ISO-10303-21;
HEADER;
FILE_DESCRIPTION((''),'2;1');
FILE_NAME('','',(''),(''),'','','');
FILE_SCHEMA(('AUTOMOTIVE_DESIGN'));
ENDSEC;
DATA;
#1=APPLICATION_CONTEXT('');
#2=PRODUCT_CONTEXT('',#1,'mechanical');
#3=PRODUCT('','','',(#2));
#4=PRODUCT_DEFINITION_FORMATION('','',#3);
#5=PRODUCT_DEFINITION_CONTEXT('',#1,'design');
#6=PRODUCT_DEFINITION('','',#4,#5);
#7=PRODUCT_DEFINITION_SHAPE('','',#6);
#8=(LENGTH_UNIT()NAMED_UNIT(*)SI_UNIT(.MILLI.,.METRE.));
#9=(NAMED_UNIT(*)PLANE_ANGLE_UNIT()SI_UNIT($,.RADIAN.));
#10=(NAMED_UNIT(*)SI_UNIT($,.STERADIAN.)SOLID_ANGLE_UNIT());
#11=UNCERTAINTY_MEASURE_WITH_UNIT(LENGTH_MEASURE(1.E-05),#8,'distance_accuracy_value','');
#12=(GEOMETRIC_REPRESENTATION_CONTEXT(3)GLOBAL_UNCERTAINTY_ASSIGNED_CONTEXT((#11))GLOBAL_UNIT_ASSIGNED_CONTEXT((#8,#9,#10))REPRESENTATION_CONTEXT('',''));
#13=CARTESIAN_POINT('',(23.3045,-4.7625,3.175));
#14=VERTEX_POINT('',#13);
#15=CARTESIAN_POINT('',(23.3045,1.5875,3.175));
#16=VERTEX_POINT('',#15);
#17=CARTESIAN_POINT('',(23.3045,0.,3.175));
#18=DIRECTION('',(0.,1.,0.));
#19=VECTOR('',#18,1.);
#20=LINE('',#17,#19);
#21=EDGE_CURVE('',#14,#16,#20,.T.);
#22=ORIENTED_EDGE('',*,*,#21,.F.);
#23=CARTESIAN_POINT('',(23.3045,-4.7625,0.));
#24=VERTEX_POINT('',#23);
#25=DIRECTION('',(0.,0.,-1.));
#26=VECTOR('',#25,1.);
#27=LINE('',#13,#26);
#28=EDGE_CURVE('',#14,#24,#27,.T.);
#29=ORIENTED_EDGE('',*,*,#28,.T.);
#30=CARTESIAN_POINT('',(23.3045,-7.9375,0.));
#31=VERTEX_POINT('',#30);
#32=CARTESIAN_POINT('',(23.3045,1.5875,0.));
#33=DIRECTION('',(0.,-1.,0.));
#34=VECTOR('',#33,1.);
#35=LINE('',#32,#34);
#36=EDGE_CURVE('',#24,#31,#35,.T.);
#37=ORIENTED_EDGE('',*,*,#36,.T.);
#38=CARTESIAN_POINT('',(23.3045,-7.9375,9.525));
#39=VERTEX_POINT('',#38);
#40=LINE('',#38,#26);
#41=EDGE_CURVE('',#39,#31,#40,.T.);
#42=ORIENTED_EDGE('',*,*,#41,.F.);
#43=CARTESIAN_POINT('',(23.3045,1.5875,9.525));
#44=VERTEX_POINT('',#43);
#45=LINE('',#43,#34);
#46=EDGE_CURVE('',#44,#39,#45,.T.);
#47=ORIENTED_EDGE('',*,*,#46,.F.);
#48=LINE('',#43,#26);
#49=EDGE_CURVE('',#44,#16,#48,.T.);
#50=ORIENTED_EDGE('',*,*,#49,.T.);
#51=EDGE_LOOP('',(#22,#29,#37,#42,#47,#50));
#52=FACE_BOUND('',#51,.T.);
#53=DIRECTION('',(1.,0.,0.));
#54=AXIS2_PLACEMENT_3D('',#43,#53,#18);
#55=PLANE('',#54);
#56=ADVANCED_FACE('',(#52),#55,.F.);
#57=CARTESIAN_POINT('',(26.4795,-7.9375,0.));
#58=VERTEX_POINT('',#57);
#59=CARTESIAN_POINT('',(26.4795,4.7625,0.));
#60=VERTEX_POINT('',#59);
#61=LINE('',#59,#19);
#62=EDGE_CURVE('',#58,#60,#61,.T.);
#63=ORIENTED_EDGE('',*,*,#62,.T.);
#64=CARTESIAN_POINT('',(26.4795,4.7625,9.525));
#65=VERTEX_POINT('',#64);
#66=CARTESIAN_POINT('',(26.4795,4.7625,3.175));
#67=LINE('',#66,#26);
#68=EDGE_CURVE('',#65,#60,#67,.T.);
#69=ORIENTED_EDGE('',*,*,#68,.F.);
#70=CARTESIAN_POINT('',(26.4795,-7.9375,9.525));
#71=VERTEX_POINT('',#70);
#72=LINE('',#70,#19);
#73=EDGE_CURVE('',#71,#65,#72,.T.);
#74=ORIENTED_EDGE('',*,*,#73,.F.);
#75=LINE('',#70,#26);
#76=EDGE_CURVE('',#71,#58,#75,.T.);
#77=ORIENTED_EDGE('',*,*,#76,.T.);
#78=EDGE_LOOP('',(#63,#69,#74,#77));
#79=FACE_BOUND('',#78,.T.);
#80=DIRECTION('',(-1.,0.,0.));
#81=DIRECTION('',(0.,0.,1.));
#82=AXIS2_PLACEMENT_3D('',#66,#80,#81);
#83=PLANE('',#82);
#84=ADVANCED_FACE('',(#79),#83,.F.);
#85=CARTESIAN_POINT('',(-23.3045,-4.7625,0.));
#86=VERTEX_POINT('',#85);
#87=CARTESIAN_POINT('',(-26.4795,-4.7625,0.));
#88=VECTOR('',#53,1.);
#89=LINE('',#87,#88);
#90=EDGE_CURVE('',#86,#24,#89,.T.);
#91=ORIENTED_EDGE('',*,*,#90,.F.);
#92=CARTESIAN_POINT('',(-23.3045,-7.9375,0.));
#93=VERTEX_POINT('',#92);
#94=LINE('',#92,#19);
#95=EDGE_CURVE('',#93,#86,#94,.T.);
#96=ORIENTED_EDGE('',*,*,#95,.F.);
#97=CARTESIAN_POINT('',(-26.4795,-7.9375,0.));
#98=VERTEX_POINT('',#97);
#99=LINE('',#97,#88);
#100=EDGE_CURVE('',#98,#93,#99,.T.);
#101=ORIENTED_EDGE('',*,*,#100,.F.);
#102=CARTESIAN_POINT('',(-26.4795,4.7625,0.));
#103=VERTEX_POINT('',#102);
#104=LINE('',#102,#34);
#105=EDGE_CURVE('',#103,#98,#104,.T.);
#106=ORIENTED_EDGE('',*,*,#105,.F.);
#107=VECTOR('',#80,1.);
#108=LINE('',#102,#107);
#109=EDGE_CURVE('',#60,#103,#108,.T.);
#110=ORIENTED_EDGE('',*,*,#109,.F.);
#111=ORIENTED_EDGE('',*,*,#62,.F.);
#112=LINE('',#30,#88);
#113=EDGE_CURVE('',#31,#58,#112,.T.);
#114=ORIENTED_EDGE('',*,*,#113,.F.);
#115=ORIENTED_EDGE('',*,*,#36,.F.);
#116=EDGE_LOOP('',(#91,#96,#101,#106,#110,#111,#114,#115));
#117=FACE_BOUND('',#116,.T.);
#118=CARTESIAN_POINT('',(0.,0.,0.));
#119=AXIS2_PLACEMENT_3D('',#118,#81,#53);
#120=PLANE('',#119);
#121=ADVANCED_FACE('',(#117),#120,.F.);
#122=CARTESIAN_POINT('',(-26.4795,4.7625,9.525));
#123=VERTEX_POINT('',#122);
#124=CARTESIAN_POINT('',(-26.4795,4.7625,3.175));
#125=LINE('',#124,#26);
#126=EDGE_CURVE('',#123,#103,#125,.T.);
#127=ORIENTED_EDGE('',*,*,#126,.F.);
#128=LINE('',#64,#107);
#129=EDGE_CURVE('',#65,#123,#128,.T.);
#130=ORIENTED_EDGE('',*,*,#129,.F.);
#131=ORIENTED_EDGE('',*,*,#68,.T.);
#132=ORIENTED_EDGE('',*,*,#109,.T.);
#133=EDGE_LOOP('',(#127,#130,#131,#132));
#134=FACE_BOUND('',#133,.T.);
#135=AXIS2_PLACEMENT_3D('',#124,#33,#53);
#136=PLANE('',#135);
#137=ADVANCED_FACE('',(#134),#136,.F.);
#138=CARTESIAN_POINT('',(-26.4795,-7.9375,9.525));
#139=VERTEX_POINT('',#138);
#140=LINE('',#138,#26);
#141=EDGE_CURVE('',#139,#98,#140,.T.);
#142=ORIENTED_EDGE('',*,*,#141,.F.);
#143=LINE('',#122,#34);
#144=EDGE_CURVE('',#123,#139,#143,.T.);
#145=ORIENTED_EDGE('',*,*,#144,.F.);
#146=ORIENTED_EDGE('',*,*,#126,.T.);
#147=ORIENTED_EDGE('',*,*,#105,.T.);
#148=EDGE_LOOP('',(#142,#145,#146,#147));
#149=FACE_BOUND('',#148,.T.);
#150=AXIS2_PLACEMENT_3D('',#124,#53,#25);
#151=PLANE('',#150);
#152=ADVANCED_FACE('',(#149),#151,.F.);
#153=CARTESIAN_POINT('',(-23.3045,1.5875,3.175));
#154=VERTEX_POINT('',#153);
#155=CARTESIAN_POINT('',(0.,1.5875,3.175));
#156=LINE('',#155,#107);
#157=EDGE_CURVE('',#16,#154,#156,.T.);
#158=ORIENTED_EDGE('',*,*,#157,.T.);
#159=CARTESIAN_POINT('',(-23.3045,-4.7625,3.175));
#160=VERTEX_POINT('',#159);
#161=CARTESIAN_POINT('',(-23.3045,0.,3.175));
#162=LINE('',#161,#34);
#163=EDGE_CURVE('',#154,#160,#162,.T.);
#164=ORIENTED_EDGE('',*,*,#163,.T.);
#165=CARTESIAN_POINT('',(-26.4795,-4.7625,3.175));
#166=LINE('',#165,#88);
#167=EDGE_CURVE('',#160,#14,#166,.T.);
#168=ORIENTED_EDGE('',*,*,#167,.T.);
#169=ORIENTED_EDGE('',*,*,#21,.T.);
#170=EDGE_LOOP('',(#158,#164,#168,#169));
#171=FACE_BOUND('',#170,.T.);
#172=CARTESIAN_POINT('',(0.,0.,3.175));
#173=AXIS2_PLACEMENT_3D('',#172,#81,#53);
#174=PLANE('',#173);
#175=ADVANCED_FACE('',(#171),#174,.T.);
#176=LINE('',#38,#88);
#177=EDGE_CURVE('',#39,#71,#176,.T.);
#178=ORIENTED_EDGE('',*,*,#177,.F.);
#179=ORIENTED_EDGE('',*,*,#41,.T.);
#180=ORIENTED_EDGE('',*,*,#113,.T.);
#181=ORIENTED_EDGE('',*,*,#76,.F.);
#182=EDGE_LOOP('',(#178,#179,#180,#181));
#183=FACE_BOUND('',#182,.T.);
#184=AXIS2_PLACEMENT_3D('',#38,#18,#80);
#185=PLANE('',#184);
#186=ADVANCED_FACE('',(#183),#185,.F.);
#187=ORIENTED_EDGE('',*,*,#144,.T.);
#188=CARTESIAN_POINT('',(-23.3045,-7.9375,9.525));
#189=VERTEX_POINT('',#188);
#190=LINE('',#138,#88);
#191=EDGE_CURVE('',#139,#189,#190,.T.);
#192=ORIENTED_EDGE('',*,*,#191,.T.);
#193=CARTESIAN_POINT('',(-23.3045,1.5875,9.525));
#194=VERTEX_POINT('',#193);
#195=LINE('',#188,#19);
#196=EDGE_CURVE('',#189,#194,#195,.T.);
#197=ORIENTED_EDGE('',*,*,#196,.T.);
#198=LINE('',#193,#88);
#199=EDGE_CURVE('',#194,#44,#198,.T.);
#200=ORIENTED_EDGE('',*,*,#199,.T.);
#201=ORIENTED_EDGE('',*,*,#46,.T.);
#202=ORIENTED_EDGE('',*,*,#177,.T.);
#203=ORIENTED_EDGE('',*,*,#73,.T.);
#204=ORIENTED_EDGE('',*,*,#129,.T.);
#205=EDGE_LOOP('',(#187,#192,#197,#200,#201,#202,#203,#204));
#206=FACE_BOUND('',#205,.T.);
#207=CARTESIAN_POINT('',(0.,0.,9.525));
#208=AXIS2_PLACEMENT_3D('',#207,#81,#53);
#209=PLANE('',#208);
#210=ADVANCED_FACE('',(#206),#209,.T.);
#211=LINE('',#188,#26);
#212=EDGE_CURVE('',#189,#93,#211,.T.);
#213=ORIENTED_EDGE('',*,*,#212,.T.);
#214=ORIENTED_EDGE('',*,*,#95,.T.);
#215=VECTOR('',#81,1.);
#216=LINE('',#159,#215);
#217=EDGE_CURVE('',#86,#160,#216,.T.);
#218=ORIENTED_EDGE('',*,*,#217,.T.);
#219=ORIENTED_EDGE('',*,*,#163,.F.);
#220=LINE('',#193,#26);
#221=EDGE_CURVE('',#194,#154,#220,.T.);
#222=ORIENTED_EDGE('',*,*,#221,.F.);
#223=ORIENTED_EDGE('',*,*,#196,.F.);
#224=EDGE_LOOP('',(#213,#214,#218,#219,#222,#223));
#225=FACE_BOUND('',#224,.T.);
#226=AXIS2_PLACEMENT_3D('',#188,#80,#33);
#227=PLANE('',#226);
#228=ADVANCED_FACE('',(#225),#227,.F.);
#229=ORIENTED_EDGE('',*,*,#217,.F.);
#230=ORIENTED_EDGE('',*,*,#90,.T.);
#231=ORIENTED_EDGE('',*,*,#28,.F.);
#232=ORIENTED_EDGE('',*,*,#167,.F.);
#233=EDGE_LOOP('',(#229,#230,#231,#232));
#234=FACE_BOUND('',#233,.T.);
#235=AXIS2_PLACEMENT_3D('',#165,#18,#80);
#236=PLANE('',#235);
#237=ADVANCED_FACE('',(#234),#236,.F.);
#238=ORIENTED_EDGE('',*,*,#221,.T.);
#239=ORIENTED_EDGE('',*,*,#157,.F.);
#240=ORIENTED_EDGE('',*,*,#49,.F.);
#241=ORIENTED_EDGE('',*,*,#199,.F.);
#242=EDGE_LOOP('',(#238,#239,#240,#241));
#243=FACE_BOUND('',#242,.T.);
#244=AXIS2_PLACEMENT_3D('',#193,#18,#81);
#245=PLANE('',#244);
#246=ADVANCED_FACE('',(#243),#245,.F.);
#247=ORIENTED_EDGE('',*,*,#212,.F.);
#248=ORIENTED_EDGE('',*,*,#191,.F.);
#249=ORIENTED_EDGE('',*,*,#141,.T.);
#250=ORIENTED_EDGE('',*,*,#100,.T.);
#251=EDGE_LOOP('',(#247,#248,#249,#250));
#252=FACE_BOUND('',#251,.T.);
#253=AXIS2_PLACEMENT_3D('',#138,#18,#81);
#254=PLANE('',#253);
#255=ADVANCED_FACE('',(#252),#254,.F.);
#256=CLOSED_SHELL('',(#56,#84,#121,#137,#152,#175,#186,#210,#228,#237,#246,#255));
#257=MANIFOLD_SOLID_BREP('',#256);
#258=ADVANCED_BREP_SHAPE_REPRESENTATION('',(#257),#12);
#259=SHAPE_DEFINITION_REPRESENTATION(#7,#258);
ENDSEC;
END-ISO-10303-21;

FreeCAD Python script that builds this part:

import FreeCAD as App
import Part
import Sketcher
Q = App.Units.Quantity

doc = App.newDocument("Part")
body = doc.addObject("PartDesign::Body", "Body")

sketch1 = body.newObject("Sketcher::SketchObject", "Sketch")
sketch1.AttachmentSupport = (doc.getObject("XY_Plane"), [""])
sketch1.MapMode = "FlatFace"
sketch1.addGeometry(Part.LineSegment(App.Vector(-26, 5, 0), App.Vector(-26, -5, 0)), False)
sketch1.addGeometry(Part.LineSegment(App.Vector(-26, -5, 0), App.Vector(26, -5, 0)), False)
sketch1.addGeometry(Part.LineSegment(App.Vector(26, -5, 0), App.Vector(26, 5, 0)), False)
sketch1.addGeometry(Part.LineSegment(App.Vector(26, 5, 0), App.Vector(-26, 5, 0)), False)
sketch1.addConstraint(Sketcher.Constraint("Coincident", 0, 2, 1, 1))
sketch1.addConstraint(Sketcher.Constraint("Coincident", 1, 2, 2, 1))
sketch1.addConstraint(Sketcher.Constraint("Coincident", 2, 2, 3, 1))
sketch1.addConstraint(Sketcher.Constraint("Coincident", 3, 2, 0, 1))
sketch1.addConstraint(Sketcher.Constraint("Vertical", 0))
sketch1.addConstraint(Sketcher.Constraint("Horizontal", 1))
sketch1.addConstraint(Sketcher.Constraint("Vertical", 2))
sketch1.addConstraint(Sketcher.Constraint("Horizontal", 3))
sketch1.addConstraint(Sketcher.Constraint("Symmetric", 0, 2, 2, 2, -1, 1))
sketch1.addConstraint(Sketcher.Constraint("DistanceX", 1, 1, 1, 2, Q("2.085 in")))
sketch1.addConstraint(Sketcher.Constraint("DistanceY", 0, 2, 0, 1, Q("0.375 in")))
pad1 = body.newObject("PartDesign::Pad", "Pad")
pad1.Profile = sketch1
pad1.Length = Q("0.125 in")

sketch2 = body.newObject("Sketcher::SketchObject", "Sketch001")
sketch2.AttachmentSupport = (doc.getObject("XY_Plane"), [""])
sketch2.MapMode = "FlatFace"
sketch2.addGeometry(Part.LineSegment(App.Vector(-26.5, 4.8, 0), App.Vector(-26.5, -7.9, 0)), False)
sketch2.addGeometry(Part.LineSegment(App.Vector(-26.5, -7.9, 0), App.Vector(-23.3, -7.9, 0)), False)
sketch2.addGeometry(Part.LineSegment(App.Vector(-23.3, -7.9, 0), App.Vector(-23.3, 1.6, 0)), False)
sketch2.addGeometry(Part.LineSegment(App.Vector(-23.3, 1.6, 0), App.Vector(23.3, 1.6, 0)), False)
sketch2.addGeometry(Part.LineSegment(App.Vector(23.3, 1.6, 0), App.Vector(23.3, -7.9, 0)), False)
sketch2.addGeometry(Part.LineSegment(App.Vector(23.3, -7.9, 0), App.Vector(26.5, -7.9, 0)), False)
sketch2.addGeometry(Part.LineSegment(App.Vector(26.5, -7.9, 0), App.Vector(26.5, 4.8, 0)), False)
sketch2.addGeometry(Part.LineSegment(App.Vector(26.5, 4.8, 0), App.Vector(-26.5, 4.8, 0)), False)
sketch2.addConstraint(Sketcher.Constraint("Coincident", 0, 2, 1, 1))
sketch2.addConstraint(Sketcher.Constraint("Coincident", 1, 2, 2, 1))
sketch2.addConstraint(Sketcher.Constraint("Coincident", 2, 2, 3, 1))
sketch2.addConstraint(Sketcher.Constraint("Coincident", 3, 2, 4, 1))
sketch2.addConstraint(Sketcher.Constraint("Coincident", 4, 2, 5, 1))
sketch2.addConstraint(Sketcher.Constraint("Coincident", 5, 2, 6, 1))
sketch2.addConstraint(Sketcher.Constraint("Coincident", 6, 2, 7, 1))
sketch2.addConstraint(Sketcher.Constraint("Coincident", 7, 2, 0, 1))
sketch2.addConstraint(Sketcher.Constraint("Vertical", 0))
sketch2.addConstraint(Sketcher.Constraint("Horizontal", 1))
sketch2.addConstraint(Sketcher.Constraint("Vertical", 2))
sketch2.addConstraint(Sketcher.Constraint("Horizontal", 3))
sketch2.addConstraint(Sketcher.Constraint("Vertical", 4))
sketch2.addConstraint(Sketcher.Constraint("Horizontal", 5))
sketch2.addConstraint(Sketcher.Constraint("Vertical", 6))
sketch2.addConstraint(Sketcher.Constraint("Horizontal", 7))
sketch2.addConstraint(Sketcher.Constraint("Symmetric", 1, 2, 4, 2, -2))
sketch2.addConstraint(Sketcher.Constraint("Equal", 1, 5))
sketch2.addConstraint(Sketcher.Constraint("DistanceY", 0, 2, 0, 1, Q("0.5 in")))
sketch2.addConstraint(Sketcher.Constraint("DistanceX", 1, 1, 1, 2, Q("0.125 in")))
sketch2.addConstraint(Sketcher.Constraint("DistanceX", 3, 1, 3, 2, Q("1.835 in")))
sketch2.addConstraint(Sketcher.Constraint("DistanceY", 2, 1, 2, 2, Q("0.375 in")))
sketch2.addConstraint(Sketcher.Constraint("DistanceY", 0, 2, -1, 1, Q("0.3125 in")))
pad2 = body.newObject("PartDesign::Pad", "Pad001")
pad2.Profile = sketch2
pad2.Length = Q("0.375 in")

doc.recompute()
